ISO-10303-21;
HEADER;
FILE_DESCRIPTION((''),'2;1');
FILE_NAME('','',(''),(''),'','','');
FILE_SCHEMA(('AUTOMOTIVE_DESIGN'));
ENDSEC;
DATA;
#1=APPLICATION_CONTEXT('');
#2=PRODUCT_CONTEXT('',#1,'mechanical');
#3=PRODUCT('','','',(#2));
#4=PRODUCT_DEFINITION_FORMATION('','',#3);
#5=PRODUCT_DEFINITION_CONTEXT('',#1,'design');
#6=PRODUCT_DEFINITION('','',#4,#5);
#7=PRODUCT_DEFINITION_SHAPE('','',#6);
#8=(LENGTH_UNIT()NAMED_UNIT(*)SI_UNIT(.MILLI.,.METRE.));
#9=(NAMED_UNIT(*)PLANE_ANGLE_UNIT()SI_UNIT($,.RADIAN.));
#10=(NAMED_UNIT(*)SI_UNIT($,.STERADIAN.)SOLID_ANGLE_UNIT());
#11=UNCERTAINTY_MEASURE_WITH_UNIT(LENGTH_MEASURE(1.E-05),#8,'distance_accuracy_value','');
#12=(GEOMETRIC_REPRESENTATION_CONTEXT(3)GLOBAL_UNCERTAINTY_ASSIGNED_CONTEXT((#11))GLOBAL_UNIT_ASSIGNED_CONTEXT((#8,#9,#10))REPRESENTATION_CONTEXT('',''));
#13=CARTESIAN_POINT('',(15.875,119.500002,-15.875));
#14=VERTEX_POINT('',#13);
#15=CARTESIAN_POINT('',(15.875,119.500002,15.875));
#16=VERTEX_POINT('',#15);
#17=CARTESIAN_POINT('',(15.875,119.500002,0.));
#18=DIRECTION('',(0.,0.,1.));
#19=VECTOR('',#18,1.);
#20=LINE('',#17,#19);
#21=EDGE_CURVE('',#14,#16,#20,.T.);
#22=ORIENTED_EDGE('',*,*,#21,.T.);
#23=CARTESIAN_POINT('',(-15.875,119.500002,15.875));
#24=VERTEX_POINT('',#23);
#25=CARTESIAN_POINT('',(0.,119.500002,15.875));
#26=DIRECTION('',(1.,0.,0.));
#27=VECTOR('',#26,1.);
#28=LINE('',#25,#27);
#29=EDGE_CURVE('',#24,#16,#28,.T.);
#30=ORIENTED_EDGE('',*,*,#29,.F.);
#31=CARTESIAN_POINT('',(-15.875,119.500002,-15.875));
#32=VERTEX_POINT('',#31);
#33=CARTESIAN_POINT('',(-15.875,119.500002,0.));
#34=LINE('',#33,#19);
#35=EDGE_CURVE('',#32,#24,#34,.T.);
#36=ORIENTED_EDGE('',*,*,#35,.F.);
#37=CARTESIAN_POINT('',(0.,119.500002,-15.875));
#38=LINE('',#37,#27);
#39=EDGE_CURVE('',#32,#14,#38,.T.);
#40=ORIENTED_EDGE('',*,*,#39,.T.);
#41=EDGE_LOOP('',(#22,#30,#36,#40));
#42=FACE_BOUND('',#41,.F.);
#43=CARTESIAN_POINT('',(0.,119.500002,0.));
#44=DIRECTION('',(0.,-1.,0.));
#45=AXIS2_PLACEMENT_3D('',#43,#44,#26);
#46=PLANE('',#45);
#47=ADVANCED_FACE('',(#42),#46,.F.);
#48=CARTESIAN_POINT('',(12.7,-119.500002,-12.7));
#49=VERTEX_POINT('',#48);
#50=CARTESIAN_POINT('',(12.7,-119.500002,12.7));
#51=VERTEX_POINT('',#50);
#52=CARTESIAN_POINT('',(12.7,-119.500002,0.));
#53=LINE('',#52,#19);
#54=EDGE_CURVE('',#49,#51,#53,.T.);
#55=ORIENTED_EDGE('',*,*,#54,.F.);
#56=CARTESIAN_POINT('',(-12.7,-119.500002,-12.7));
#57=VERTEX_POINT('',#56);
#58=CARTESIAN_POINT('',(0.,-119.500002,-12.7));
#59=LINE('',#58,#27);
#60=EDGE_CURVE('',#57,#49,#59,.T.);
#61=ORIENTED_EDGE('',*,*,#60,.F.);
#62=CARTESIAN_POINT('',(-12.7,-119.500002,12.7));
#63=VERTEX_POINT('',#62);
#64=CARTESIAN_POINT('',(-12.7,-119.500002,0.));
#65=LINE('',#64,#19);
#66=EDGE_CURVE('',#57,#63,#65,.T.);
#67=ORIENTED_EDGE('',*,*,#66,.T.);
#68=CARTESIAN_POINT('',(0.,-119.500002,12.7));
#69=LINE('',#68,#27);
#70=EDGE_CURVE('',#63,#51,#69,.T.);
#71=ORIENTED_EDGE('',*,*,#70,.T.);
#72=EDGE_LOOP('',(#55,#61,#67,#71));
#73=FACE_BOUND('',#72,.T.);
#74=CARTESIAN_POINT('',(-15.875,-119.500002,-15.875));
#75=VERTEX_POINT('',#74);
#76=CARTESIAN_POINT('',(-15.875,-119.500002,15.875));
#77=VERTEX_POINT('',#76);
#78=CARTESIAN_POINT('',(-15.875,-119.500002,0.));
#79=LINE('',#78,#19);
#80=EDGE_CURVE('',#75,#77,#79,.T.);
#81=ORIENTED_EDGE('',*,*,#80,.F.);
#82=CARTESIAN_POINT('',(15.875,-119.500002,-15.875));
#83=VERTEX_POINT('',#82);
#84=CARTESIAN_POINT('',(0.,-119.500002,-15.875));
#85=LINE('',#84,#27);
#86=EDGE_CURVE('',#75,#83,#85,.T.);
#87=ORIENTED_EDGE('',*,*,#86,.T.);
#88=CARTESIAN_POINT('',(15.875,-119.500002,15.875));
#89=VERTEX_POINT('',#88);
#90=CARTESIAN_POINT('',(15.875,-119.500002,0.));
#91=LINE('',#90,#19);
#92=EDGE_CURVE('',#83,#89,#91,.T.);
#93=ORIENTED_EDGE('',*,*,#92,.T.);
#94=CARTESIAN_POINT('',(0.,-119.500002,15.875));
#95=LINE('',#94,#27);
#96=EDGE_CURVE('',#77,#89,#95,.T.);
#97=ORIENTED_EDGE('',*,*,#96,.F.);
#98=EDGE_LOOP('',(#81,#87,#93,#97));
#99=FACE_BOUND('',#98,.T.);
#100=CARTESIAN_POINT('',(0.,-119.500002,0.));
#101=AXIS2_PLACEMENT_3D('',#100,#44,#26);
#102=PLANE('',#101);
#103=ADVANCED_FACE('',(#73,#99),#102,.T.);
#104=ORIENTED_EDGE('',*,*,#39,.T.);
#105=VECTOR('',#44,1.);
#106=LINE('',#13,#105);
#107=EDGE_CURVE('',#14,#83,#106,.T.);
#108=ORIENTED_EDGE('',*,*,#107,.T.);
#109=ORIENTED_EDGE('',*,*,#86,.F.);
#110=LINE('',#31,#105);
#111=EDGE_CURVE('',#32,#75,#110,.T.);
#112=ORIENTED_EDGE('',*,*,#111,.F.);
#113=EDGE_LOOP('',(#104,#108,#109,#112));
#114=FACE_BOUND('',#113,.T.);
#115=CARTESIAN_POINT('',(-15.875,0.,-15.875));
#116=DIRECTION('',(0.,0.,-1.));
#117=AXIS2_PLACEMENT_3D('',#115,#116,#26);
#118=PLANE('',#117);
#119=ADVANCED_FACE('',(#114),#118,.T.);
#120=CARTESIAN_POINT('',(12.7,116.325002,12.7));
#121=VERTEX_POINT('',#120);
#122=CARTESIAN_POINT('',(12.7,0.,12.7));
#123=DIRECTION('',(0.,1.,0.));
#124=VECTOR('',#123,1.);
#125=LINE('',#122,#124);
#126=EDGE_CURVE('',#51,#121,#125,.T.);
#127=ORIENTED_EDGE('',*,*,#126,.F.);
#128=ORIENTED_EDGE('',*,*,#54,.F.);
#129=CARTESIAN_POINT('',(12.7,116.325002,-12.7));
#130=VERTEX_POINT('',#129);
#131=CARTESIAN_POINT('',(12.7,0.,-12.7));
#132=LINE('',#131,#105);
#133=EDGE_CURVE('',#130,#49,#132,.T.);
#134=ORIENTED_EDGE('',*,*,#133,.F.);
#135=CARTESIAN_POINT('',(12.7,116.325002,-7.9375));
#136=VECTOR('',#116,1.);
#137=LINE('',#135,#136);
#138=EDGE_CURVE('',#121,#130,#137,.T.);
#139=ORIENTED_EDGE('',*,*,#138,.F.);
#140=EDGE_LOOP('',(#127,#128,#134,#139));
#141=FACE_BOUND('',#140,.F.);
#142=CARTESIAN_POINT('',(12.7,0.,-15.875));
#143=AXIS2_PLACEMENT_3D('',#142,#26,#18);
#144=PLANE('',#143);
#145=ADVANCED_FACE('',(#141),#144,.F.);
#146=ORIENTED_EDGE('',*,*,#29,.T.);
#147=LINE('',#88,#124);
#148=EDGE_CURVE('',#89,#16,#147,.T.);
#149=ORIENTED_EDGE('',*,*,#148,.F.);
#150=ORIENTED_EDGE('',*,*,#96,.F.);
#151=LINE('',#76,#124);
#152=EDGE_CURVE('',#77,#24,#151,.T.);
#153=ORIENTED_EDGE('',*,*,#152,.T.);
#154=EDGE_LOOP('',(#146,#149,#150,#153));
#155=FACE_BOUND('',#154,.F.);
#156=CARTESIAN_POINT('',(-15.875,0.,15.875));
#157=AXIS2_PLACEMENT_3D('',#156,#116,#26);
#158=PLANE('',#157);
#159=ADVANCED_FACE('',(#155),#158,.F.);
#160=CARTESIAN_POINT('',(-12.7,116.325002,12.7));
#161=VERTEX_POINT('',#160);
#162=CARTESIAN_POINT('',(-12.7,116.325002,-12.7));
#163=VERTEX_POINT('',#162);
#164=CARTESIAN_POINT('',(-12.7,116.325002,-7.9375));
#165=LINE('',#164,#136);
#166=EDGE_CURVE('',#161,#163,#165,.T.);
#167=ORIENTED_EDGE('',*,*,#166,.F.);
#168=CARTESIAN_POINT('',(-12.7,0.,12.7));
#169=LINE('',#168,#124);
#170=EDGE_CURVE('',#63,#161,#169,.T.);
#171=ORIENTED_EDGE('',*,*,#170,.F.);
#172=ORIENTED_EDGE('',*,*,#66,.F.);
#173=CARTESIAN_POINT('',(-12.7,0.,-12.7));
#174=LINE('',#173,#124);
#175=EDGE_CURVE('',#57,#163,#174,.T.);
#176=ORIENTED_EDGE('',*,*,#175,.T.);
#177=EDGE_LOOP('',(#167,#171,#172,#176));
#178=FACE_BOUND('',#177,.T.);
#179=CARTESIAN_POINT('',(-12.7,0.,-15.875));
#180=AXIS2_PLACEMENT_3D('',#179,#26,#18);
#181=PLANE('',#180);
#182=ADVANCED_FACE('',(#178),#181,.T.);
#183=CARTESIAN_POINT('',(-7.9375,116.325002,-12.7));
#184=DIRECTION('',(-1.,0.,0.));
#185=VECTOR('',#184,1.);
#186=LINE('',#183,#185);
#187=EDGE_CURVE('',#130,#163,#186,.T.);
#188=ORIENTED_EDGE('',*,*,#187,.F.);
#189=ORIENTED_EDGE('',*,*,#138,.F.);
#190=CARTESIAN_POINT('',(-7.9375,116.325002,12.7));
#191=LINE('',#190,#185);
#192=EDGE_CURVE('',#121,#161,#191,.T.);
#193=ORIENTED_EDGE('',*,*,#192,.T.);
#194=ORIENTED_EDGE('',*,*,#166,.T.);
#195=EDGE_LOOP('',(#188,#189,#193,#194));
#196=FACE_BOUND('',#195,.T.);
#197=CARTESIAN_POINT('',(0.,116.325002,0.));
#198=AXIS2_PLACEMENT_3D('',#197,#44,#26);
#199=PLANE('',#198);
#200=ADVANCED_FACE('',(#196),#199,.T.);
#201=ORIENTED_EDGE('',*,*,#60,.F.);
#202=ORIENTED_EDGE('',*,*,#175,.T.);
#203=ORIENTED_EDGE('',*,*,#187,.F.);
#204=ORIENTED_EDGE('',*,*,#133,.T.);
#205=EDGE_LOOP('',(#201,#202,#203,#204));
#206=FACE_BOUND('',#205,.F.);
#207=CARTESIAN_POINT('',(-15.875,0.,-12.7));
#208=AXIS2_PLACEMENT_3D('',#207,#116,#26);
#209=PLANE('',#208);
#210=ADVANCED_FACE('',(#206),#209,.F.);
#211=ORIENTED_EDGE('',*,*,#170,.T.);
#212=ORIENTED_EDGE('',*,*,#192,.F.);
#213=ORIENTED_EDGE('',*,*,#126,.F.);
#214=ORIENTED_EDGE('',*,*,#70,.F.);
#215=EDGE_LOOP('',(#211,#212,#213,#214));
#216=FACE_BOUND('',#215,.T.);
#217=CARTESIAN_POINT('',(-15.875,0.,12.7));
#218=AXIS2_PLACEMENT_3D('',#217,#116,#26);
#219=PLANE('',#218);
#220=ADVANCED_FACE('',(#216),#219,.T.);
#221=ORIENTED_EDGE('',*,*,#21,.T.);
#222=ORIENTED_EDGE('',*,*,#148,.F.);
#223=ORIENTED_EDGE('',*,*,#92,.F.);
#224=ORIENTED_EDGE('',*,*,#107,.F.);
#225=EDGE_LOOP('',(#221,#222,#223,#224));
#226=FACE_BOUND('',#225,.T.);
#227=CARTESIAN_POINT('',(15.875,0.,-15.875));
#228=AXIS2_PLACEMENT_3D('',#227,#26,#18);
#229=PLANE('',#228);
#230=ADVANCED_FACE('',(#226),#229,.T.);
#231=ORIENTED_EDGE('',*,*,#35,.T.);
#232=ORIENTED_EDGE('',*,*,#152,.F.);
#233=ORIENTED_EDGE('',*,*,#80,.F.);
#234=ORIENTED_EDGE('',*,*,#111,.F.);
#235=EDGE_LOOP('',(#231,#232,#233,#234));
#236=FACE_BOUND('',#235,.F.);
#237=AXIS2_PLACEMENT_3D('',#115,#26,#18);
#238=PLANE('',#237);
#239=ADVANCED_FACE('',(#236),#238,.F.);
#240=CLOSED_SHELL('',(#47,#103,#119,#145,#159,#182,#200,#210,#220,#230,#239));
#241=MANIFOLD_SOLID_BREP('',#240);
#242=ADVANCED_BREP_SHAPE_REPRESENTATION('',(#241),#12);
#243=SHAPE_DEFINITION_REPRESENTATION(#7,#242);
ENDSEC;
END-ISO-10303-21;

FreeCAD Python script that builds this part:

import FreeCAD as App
import Part
import Sketcher
from FreeCAD import Vector
Q = App.Units.Quantity


def faces_at(feature, points):
    """Names of the faces that lie closest to the given points."""
    faces = feature.Shape.Faces
    near = lambda p: min(range(len(faces)), key=lambda i: faces[i].distToShape(Part.Vertex(*p))[0])
    return sorted({f"Face{near(p) + 1}" for p in points})

doc = App.newDocument("Part")
body = doc.addObject("PartDesign::Body", "Body")

# Sketch on XZ plane
sketch1 = body.newObject("Sketcher::SketchObject", "Sketch")
sketch1.AttachmentSupport = (doc.getObject("XZ_Plane"), [""])
sketch1.MapMode = "FlatFace"
sketch1.addGeometry(Part.LineSegment(Vector(-15.875, 15.875, 0), Vector(-15.875, -15.875, 0)), False)
sketch1.addGeometry(Part.LineSegment(Vector(-15.875, -15.875, 0), Vector(15.875, -15.875, 0)), False)
sketch1.addGeometry(Part.LineSegment(Vector(15.875, -15.875, 0), Vector(15.875, 15.875, 0)), False)
sketch1.addGeometry(Part.LineSegment(Vector(15.875, 15.875, 0), Vector(-15.875, 15.875, 0)), False)
sketch1.addConstraint(Sketcher.Constraint("Coincident", 0, 2, 1, 1))
sketch1.addConstraint(Sketcher.Constraint("Coincident", 1, 2, 2, 1))
sketch1.addConstraint(Sketcher.Constraint("Coincident", 2, 2, 3, 1))
sketch1.addConstraint(Sketcher.Constraint("Coincident", 3, 2, 0, 1))
sketch1.addConstraint(Sketcher.Constraint("Vertical", 0))
sketch1.addConstraint(Sketcher.Constraint("Horizontal", 1))
sketch1.addConstraint(Sketcher.Constraint("Vertical", 2))
sketch1.addConstraint(Sketcher.Constraint("Horizontal", 3))
sketch1.addConstraint(Sketcher.Constraint("Symmetric", 0, 2, 2, 2, -1, 1))
sketch1.addConstraint(Sketcher.Constraint("Equal", 3, 0))
sketch1.addConstraint(Sketcher.Constraint("DistanceX", 1, 1, 1, 2, Q("1.25 in")))
pad1 = body.newObject("PartDesign::Pad", "Pad")
pad1.Profile = sketch1
pad1.Length = 239.000004
pad1.Midplane = True
doc.recompute()

thickness = body.newObject("PartDesign::Thickness", "Thickness")
thickness.Base = (pad1, faces_at(pad1, [(0, -119.5, 0)]))
thickness.Value = Q("0.125 in")
thickness.Reversed = True
thickness.Join = "Arc"

doc.recompute()
